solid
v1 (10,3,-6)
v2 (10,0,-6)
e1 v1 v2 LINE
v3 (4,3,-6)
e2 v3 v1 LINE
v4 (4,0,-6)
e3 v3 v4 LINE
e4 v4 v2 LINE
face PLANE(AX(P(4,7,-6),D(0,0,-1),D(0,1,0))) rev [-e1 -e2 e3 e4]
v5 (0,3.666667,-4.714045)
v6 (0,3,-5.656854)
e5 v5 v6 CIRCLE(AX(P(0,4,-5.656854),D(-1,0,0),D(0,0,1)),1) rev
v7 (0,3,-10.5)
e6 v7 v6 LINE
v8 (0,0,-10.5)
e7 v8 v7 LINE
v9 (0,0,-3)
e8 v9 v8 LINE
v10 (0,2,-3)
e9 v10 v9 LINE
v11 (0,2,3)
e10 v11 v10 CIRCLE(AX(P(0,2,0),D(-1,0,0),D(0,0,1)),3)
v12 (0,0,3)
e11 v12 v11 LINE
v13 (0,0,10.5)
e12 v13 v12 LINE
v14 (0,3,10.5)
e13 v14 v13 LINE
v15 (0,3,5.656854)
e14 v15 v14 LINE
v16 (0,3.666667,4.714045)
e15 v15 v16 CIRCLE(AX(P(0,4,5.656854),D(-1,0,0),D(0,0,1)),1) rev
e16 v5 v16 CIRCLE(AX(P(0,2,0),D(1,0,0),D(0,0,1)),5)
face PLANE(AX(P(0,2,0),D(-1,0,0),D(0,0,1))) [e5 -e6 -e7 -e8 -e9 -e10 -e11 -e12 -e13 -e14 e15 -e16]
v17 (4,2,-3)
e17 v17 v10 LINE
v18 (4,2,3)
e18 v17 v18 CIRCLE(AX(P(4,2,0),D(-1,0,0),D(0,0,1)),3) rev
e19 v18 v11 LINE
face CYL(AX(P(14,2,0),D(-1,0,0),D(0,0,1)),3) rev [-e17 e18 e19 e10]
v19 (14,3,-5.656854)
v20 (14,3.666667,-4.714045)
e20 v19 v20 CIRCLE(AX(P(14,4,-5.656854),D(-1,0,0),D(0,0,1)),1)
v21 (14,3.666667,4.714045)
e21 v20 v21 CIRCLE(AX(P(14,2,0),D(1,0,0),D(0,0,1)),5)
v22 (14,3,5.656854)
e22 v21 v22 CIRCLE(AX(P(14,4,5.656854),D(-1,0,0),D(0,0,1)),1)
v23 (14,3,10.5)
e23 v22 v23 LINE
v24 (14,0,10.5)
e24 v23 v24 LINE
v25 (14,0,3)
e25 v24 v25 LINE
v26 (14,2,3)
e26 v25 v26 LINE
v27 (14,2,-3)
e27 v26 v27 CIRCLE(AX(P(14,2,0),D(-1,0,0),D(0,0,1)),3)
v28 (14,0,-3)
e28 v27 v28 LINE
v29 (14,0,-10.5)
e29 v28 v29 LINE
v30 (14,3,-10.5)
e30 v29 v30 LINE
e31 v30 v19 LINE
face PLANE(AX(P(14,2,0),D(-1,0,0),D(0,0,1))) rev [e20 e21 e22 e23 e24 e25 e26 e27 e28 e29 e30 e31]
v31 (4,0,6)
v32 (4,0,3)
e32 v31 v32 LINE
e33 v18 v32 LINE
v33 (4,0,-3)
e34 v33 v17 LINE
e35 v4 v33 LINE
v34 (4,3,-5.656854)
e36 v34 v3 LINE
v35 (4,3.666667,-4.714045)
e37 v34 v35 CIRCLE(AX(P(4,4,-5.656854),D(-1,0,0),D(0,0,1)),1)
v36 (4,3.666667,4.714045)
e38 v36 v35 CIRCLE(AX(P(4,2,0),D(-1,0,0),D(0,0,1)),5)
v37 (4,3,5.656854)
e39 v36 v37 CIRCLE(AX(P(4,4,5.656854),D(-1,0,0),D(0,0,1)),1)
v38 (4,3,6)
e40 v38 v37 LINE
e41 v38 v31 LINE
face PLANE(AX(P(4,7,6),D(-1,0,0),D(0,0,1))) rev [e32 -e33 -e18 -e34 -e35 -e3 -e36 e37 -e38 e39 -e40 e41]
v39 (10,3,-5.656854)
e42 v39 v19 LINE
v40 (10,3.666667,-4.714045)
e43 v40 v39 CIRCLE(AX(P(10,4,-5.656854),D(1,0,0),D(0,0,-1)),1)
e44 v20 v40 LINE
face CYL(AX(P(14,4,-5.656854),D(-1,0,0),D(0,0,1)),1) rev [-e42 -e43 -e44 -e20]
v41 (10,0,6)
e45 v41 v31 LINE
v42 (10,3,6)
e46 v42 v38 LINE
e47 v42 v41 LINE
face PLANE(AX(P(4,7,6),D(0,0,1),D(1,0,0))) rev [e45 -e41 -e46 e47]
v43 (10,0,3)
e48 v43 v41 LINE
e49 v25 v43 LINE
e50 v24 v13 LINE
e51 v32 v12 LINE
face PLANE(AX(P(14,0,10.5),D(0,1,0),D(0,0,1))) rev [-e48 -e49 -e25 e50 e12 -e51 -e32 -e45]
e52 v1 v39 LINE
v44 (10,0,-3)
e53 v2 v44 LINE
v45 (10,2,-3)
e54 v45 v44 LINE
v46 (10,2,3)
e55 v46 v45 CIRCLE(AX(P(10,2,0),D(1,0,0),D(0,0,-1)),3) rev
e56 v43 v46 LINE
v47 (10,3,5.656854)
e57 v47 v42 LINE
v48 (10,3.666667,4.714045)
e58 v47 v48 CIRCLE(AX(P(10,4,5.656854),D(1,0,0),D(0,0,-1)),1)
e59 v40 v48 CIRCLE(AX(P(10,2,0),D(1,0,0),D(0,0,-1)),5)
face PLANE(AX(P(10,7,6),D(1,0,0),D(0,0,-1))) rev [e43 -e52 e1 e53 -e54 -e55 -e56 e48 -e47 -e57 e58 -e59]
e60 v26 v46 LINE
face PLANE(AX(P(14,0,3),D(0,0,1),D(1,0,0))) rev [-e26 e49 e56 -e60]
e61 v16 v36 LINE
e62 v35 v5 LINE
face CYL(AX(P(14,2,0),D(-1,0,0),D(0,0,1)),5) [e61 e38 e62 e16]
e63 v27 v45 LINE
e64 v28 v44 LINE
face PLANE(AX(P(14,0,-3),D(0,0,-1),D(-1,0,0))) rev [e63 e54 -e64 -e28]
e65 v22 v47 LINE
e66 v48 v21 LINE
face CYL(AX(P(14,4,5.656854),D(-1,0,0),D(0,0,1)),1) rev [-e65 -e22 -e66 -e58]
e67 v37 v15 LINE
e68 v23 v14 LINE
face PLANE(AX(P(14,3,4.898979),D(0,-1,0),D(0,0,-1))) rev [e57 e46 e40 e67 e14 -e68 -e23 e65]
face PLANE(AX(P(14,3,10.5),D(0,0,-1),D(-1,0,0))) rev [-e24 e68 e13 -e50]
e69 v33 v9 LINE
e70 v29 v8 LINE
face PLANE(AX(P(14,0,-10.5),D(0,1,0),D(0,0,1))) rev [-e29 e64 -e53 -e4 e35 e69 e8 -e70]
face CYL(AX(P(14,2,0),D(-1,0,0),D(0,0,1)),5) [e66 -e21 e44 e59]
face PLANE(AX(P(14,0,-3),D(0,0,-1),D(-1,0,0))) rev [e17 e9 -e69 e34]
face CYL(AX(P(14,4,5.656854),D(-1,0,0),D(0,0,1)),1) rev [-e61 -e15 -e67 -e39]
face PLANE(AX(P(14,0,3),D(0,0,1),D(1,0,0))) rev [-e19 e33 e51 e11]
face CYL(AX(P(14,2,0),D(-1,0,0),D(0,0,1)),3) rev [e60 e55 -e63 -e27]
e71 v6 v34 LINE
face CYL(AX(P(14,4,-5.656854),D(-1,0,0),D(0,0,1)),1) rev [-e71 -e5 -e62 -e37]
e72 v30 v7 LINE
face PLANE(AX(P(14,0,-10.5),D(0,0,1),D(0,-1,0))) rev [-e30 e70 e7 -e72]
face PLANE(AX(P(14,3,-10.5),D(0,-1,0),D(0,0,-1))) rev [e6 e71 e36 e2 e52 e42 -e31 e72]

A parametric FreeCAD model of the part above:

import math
import FreeCAD as App
import Part
import Sketcher
from FreeCAD import Vector
Q = App.Units.Quantity


def edges_at(feature, points):
    """Names of the edges that pass closest to the given points."""
    edges = feature.Shape.Edges
    near = lambda p: min(range(len(edges)), key=lambda i: edges[i].distToShape(Part.Vertex(*p))[0])
    return sorted({f"Edge{near(p) + 1}" for p in points})

doc = App.newDocument("Part")
body = doc.addObject("PartDesign::Body", "Body")

# Sketch on YZ plane
sketch1 = body.newObject("Sketcher::SketchObject", "Sketch")
sketch1.AttachmentSupport = (doc.getObject("YZ_Plane"), [""])
sketch1.MapMode = "FlatFace"
sketch1.addGeometry(Part.LineSegment(Vector(0, -3, 0), Vector(0, -10.5, 0)), False)
sketch1.addGeometry(Part.LineSegment(Vector(0, -10.5, 0), Vector(3, -10.5, 0)), False)
sketch1.addGeometry(Part.LineSegment(Vector(3, -10.5, 0), Vector(3, -4.898979, 0)), False)
sketch1.addGeometry(Part.ArcOfCircle(Part.Circle(Vector(2, 0, 0), Vector(0, 0, 1), 5), math.radians(-78.463041), math.radians(78.463041)), False)
sketch1.addGeometry(Part.LineSegment(Vector(3, 4.898979, 0), Vector(3, 10.5, 0)), False)
sketch1.addGeometry(Part.LineSegment(Vector(3, 10.5, 0), Vector(0, 10.5, 0)), False)
sketch1.addGeometry(Part.LineSegment(Vector(0, 10.5, 0), Vector(0, 3, 0)), False)
sketch1.addGeometry(Part.LineSegment(Vector(0, 3, 0), Vector(2, 3, 0)), False)
sketch1.addGeometry(Part.ArcOfCircle(Part.Circle(Vector(2, 0, 0), Vector(0, 0, 1), 3), math.radians(-90), math.radians(90)), False)
sketch1.addGeometry(Part.LineSegment(Vector(2, -3, 0), Vector(0, -3, 0)), False)
sketch1.addConstraint(Sketcher.Constraint("Coincident", 0, 2, 1, 1))
sketch1.addConstraint(Sketcher.Constraint("Coincident", 1, 2, 2, 1))
sketch1.addConstraint(Sketcher.Constraint("Coincident", 2, 2, 3, 1))
sketch1.addConstraint(Sketcher.Constraint("Coincident", 3, 2, 4, 1))
sketch1.addConstraint(Sketcher.Constraint("Coincident", 4, 2, 5, 1))
sketch1.addConstraint(Sketcher.Constraint("Coincident", 5, 2, 6, 1))
sketch1.addConstraint(Sketcher.Constraint("Coincident", 6, 2, 7, 1))
sketch1.addConstraint(Sketcher.Constraint("Tangent", 7, 2, 8, 2))
sketch1.addConstraint(Sketcher.Constraint("Tangent", 8, 1, 9, 1))
sketch1.addConstraint(Sketcher.Constraint("Coincident", 9, 2, 0, 1))
sketch1.addConstraint(Sketcher.Constraint("Vertical", 0))
sketch1.addConstraint(Sketcher.Constraint("Horizontal", 1))
sketch1.addConstraint(Sketcher.Constraint("Vertical", 2))
sketch1.addConstraint(Sketcher.Constraint("Vertical", 4))
sketch1.addConstraint(Sketcher.Constraint("Horizontal", 5))
sketch1.addConstraint(Sketcher.Constraint("Vertical", 6))
sketch1.addConstraint(Sketcher.Constraint("Horizontal", 7))
sketch1.addConstraint(Sketcher.Constraint("Horizontal", 9))
sketch1.addConstraint(Sketcher.Constraint("Coincident", 8, 3, 3, 3))
sketch1.addConstraint(Sketcher.Constraint("Symmetric", 0, 2, 5, 2, -1, 1))
sketch1.addConstraint(Sketcher.Constraint("Symmetric", 2, 2, 3, 2, -1))
sketch1.addConstraint(Sketcher.Constraint("PointOnObject", 0, 2, -2))
sketch1.addConstraint(Sketcher.Constraint("Radius", 3, Q("5 mm")))
sketch1.addConstraint(Sketcher.Constraint("Radius", 8, Q("3 mm")))
sketch1.addConstraint(Sketcher.Constraint("DistanceX", 1, 1, 1, 2, Q("3 mm")))
sketch1.addConstraint(Sketcher.Constraint("DistanceX", 7, 1, 7, 2, Q("2 mm")))
sketch1.addConstraint(Sketcher.Constraint("DistanceY", 0, 2, 0, 1, Q("7.5 mm")))
pad1 = body.newObject("PartDesign::Pad", "Pad")
pad1.Profile = sketch1
pad1.Length = 14

# Sketch on XZ plane
sketch2 = body.newObject("Sketcher::SketchObject", "Sketch001")
sketch2.AttachmentSupport = (doc.getObject("XZ_Plane"), [""])
sketch2.MapMode = "FlatFace"
sketch2.addGeometry(Part.LineSegment(Vector(4, 6, 0), Vector(4, -6, 0)), False)
sketch2.addGeometry(Part.LineSegment(Vector(4, -6, 0), Vector(10, -6, 0)), False)
sketch2.addGeometry(Part.LineSegment(Vector(10, -6, 0), Vector(10, 6, 0)), False)
sketch2.addGeometry(Part.LineSegment(Vector(10, 6, 0), Vector(4, 6, 0)), False)
sketch2.addConstraint(Sketcher.Constraint("Coincident", 0, 2, 1, 1))
sketch2.addConstraint(Sketcher.Constraint("Coincident", 1, 2, 2, 1))
sketch2.addConstraint(Sketcher.Constraint("Coincident", 2, 2, 3, 1))
sketch2.addConstraint(Sketcher.Constraint("Coincident", 3, 2, 0, 1))
sketch2.addConstraint(Sketcher.Constraint("Vertical", 0))
sketch2.addConstraint(Sketcher.Constraint("Horizontal", 1))
sketch2.addConstraint(Sketcher.Constraint("Vertical", 2))
sketch2.addConstraint(Sketcher.Constraint("Horizontal", 3))
sketch2.addConstraint(Sketcher.Constraint("DistanceX", 1, 1, 1, 2, Q("6 mm")))
sketch2.addConstraint(Sketcher.Constraint("DistanceY", 0, 2, 0, 1, Q("12 mm")))
sketch2.addConstraint(Sketcher.Constraint("DistanceX", -1, 1, 0, 2, Q("4 mm")))
sketch2.addConstraint(Sketcher.Constraint("DistanceY", 0, 2, -1, 1, Q("6 mm")))
pocket1 = body.newObject("PartDesign::Pocket", "Pocket")
pocket1.Profile = sketch2
pocket1.Type = "ThroughAll"
doc.recompute()

fillet = body.newObject("PartDesign::Fillet", "Fillet")
fillet.Base = (pocket1, edges_at(pocket1, [
    (12, 3, 4.899),
    (12, 3, -4.899),
    (2, 3, 4.899),
    (2, 3, -4.899),
]))
fillet.Radius = 1

doc.recompute()
